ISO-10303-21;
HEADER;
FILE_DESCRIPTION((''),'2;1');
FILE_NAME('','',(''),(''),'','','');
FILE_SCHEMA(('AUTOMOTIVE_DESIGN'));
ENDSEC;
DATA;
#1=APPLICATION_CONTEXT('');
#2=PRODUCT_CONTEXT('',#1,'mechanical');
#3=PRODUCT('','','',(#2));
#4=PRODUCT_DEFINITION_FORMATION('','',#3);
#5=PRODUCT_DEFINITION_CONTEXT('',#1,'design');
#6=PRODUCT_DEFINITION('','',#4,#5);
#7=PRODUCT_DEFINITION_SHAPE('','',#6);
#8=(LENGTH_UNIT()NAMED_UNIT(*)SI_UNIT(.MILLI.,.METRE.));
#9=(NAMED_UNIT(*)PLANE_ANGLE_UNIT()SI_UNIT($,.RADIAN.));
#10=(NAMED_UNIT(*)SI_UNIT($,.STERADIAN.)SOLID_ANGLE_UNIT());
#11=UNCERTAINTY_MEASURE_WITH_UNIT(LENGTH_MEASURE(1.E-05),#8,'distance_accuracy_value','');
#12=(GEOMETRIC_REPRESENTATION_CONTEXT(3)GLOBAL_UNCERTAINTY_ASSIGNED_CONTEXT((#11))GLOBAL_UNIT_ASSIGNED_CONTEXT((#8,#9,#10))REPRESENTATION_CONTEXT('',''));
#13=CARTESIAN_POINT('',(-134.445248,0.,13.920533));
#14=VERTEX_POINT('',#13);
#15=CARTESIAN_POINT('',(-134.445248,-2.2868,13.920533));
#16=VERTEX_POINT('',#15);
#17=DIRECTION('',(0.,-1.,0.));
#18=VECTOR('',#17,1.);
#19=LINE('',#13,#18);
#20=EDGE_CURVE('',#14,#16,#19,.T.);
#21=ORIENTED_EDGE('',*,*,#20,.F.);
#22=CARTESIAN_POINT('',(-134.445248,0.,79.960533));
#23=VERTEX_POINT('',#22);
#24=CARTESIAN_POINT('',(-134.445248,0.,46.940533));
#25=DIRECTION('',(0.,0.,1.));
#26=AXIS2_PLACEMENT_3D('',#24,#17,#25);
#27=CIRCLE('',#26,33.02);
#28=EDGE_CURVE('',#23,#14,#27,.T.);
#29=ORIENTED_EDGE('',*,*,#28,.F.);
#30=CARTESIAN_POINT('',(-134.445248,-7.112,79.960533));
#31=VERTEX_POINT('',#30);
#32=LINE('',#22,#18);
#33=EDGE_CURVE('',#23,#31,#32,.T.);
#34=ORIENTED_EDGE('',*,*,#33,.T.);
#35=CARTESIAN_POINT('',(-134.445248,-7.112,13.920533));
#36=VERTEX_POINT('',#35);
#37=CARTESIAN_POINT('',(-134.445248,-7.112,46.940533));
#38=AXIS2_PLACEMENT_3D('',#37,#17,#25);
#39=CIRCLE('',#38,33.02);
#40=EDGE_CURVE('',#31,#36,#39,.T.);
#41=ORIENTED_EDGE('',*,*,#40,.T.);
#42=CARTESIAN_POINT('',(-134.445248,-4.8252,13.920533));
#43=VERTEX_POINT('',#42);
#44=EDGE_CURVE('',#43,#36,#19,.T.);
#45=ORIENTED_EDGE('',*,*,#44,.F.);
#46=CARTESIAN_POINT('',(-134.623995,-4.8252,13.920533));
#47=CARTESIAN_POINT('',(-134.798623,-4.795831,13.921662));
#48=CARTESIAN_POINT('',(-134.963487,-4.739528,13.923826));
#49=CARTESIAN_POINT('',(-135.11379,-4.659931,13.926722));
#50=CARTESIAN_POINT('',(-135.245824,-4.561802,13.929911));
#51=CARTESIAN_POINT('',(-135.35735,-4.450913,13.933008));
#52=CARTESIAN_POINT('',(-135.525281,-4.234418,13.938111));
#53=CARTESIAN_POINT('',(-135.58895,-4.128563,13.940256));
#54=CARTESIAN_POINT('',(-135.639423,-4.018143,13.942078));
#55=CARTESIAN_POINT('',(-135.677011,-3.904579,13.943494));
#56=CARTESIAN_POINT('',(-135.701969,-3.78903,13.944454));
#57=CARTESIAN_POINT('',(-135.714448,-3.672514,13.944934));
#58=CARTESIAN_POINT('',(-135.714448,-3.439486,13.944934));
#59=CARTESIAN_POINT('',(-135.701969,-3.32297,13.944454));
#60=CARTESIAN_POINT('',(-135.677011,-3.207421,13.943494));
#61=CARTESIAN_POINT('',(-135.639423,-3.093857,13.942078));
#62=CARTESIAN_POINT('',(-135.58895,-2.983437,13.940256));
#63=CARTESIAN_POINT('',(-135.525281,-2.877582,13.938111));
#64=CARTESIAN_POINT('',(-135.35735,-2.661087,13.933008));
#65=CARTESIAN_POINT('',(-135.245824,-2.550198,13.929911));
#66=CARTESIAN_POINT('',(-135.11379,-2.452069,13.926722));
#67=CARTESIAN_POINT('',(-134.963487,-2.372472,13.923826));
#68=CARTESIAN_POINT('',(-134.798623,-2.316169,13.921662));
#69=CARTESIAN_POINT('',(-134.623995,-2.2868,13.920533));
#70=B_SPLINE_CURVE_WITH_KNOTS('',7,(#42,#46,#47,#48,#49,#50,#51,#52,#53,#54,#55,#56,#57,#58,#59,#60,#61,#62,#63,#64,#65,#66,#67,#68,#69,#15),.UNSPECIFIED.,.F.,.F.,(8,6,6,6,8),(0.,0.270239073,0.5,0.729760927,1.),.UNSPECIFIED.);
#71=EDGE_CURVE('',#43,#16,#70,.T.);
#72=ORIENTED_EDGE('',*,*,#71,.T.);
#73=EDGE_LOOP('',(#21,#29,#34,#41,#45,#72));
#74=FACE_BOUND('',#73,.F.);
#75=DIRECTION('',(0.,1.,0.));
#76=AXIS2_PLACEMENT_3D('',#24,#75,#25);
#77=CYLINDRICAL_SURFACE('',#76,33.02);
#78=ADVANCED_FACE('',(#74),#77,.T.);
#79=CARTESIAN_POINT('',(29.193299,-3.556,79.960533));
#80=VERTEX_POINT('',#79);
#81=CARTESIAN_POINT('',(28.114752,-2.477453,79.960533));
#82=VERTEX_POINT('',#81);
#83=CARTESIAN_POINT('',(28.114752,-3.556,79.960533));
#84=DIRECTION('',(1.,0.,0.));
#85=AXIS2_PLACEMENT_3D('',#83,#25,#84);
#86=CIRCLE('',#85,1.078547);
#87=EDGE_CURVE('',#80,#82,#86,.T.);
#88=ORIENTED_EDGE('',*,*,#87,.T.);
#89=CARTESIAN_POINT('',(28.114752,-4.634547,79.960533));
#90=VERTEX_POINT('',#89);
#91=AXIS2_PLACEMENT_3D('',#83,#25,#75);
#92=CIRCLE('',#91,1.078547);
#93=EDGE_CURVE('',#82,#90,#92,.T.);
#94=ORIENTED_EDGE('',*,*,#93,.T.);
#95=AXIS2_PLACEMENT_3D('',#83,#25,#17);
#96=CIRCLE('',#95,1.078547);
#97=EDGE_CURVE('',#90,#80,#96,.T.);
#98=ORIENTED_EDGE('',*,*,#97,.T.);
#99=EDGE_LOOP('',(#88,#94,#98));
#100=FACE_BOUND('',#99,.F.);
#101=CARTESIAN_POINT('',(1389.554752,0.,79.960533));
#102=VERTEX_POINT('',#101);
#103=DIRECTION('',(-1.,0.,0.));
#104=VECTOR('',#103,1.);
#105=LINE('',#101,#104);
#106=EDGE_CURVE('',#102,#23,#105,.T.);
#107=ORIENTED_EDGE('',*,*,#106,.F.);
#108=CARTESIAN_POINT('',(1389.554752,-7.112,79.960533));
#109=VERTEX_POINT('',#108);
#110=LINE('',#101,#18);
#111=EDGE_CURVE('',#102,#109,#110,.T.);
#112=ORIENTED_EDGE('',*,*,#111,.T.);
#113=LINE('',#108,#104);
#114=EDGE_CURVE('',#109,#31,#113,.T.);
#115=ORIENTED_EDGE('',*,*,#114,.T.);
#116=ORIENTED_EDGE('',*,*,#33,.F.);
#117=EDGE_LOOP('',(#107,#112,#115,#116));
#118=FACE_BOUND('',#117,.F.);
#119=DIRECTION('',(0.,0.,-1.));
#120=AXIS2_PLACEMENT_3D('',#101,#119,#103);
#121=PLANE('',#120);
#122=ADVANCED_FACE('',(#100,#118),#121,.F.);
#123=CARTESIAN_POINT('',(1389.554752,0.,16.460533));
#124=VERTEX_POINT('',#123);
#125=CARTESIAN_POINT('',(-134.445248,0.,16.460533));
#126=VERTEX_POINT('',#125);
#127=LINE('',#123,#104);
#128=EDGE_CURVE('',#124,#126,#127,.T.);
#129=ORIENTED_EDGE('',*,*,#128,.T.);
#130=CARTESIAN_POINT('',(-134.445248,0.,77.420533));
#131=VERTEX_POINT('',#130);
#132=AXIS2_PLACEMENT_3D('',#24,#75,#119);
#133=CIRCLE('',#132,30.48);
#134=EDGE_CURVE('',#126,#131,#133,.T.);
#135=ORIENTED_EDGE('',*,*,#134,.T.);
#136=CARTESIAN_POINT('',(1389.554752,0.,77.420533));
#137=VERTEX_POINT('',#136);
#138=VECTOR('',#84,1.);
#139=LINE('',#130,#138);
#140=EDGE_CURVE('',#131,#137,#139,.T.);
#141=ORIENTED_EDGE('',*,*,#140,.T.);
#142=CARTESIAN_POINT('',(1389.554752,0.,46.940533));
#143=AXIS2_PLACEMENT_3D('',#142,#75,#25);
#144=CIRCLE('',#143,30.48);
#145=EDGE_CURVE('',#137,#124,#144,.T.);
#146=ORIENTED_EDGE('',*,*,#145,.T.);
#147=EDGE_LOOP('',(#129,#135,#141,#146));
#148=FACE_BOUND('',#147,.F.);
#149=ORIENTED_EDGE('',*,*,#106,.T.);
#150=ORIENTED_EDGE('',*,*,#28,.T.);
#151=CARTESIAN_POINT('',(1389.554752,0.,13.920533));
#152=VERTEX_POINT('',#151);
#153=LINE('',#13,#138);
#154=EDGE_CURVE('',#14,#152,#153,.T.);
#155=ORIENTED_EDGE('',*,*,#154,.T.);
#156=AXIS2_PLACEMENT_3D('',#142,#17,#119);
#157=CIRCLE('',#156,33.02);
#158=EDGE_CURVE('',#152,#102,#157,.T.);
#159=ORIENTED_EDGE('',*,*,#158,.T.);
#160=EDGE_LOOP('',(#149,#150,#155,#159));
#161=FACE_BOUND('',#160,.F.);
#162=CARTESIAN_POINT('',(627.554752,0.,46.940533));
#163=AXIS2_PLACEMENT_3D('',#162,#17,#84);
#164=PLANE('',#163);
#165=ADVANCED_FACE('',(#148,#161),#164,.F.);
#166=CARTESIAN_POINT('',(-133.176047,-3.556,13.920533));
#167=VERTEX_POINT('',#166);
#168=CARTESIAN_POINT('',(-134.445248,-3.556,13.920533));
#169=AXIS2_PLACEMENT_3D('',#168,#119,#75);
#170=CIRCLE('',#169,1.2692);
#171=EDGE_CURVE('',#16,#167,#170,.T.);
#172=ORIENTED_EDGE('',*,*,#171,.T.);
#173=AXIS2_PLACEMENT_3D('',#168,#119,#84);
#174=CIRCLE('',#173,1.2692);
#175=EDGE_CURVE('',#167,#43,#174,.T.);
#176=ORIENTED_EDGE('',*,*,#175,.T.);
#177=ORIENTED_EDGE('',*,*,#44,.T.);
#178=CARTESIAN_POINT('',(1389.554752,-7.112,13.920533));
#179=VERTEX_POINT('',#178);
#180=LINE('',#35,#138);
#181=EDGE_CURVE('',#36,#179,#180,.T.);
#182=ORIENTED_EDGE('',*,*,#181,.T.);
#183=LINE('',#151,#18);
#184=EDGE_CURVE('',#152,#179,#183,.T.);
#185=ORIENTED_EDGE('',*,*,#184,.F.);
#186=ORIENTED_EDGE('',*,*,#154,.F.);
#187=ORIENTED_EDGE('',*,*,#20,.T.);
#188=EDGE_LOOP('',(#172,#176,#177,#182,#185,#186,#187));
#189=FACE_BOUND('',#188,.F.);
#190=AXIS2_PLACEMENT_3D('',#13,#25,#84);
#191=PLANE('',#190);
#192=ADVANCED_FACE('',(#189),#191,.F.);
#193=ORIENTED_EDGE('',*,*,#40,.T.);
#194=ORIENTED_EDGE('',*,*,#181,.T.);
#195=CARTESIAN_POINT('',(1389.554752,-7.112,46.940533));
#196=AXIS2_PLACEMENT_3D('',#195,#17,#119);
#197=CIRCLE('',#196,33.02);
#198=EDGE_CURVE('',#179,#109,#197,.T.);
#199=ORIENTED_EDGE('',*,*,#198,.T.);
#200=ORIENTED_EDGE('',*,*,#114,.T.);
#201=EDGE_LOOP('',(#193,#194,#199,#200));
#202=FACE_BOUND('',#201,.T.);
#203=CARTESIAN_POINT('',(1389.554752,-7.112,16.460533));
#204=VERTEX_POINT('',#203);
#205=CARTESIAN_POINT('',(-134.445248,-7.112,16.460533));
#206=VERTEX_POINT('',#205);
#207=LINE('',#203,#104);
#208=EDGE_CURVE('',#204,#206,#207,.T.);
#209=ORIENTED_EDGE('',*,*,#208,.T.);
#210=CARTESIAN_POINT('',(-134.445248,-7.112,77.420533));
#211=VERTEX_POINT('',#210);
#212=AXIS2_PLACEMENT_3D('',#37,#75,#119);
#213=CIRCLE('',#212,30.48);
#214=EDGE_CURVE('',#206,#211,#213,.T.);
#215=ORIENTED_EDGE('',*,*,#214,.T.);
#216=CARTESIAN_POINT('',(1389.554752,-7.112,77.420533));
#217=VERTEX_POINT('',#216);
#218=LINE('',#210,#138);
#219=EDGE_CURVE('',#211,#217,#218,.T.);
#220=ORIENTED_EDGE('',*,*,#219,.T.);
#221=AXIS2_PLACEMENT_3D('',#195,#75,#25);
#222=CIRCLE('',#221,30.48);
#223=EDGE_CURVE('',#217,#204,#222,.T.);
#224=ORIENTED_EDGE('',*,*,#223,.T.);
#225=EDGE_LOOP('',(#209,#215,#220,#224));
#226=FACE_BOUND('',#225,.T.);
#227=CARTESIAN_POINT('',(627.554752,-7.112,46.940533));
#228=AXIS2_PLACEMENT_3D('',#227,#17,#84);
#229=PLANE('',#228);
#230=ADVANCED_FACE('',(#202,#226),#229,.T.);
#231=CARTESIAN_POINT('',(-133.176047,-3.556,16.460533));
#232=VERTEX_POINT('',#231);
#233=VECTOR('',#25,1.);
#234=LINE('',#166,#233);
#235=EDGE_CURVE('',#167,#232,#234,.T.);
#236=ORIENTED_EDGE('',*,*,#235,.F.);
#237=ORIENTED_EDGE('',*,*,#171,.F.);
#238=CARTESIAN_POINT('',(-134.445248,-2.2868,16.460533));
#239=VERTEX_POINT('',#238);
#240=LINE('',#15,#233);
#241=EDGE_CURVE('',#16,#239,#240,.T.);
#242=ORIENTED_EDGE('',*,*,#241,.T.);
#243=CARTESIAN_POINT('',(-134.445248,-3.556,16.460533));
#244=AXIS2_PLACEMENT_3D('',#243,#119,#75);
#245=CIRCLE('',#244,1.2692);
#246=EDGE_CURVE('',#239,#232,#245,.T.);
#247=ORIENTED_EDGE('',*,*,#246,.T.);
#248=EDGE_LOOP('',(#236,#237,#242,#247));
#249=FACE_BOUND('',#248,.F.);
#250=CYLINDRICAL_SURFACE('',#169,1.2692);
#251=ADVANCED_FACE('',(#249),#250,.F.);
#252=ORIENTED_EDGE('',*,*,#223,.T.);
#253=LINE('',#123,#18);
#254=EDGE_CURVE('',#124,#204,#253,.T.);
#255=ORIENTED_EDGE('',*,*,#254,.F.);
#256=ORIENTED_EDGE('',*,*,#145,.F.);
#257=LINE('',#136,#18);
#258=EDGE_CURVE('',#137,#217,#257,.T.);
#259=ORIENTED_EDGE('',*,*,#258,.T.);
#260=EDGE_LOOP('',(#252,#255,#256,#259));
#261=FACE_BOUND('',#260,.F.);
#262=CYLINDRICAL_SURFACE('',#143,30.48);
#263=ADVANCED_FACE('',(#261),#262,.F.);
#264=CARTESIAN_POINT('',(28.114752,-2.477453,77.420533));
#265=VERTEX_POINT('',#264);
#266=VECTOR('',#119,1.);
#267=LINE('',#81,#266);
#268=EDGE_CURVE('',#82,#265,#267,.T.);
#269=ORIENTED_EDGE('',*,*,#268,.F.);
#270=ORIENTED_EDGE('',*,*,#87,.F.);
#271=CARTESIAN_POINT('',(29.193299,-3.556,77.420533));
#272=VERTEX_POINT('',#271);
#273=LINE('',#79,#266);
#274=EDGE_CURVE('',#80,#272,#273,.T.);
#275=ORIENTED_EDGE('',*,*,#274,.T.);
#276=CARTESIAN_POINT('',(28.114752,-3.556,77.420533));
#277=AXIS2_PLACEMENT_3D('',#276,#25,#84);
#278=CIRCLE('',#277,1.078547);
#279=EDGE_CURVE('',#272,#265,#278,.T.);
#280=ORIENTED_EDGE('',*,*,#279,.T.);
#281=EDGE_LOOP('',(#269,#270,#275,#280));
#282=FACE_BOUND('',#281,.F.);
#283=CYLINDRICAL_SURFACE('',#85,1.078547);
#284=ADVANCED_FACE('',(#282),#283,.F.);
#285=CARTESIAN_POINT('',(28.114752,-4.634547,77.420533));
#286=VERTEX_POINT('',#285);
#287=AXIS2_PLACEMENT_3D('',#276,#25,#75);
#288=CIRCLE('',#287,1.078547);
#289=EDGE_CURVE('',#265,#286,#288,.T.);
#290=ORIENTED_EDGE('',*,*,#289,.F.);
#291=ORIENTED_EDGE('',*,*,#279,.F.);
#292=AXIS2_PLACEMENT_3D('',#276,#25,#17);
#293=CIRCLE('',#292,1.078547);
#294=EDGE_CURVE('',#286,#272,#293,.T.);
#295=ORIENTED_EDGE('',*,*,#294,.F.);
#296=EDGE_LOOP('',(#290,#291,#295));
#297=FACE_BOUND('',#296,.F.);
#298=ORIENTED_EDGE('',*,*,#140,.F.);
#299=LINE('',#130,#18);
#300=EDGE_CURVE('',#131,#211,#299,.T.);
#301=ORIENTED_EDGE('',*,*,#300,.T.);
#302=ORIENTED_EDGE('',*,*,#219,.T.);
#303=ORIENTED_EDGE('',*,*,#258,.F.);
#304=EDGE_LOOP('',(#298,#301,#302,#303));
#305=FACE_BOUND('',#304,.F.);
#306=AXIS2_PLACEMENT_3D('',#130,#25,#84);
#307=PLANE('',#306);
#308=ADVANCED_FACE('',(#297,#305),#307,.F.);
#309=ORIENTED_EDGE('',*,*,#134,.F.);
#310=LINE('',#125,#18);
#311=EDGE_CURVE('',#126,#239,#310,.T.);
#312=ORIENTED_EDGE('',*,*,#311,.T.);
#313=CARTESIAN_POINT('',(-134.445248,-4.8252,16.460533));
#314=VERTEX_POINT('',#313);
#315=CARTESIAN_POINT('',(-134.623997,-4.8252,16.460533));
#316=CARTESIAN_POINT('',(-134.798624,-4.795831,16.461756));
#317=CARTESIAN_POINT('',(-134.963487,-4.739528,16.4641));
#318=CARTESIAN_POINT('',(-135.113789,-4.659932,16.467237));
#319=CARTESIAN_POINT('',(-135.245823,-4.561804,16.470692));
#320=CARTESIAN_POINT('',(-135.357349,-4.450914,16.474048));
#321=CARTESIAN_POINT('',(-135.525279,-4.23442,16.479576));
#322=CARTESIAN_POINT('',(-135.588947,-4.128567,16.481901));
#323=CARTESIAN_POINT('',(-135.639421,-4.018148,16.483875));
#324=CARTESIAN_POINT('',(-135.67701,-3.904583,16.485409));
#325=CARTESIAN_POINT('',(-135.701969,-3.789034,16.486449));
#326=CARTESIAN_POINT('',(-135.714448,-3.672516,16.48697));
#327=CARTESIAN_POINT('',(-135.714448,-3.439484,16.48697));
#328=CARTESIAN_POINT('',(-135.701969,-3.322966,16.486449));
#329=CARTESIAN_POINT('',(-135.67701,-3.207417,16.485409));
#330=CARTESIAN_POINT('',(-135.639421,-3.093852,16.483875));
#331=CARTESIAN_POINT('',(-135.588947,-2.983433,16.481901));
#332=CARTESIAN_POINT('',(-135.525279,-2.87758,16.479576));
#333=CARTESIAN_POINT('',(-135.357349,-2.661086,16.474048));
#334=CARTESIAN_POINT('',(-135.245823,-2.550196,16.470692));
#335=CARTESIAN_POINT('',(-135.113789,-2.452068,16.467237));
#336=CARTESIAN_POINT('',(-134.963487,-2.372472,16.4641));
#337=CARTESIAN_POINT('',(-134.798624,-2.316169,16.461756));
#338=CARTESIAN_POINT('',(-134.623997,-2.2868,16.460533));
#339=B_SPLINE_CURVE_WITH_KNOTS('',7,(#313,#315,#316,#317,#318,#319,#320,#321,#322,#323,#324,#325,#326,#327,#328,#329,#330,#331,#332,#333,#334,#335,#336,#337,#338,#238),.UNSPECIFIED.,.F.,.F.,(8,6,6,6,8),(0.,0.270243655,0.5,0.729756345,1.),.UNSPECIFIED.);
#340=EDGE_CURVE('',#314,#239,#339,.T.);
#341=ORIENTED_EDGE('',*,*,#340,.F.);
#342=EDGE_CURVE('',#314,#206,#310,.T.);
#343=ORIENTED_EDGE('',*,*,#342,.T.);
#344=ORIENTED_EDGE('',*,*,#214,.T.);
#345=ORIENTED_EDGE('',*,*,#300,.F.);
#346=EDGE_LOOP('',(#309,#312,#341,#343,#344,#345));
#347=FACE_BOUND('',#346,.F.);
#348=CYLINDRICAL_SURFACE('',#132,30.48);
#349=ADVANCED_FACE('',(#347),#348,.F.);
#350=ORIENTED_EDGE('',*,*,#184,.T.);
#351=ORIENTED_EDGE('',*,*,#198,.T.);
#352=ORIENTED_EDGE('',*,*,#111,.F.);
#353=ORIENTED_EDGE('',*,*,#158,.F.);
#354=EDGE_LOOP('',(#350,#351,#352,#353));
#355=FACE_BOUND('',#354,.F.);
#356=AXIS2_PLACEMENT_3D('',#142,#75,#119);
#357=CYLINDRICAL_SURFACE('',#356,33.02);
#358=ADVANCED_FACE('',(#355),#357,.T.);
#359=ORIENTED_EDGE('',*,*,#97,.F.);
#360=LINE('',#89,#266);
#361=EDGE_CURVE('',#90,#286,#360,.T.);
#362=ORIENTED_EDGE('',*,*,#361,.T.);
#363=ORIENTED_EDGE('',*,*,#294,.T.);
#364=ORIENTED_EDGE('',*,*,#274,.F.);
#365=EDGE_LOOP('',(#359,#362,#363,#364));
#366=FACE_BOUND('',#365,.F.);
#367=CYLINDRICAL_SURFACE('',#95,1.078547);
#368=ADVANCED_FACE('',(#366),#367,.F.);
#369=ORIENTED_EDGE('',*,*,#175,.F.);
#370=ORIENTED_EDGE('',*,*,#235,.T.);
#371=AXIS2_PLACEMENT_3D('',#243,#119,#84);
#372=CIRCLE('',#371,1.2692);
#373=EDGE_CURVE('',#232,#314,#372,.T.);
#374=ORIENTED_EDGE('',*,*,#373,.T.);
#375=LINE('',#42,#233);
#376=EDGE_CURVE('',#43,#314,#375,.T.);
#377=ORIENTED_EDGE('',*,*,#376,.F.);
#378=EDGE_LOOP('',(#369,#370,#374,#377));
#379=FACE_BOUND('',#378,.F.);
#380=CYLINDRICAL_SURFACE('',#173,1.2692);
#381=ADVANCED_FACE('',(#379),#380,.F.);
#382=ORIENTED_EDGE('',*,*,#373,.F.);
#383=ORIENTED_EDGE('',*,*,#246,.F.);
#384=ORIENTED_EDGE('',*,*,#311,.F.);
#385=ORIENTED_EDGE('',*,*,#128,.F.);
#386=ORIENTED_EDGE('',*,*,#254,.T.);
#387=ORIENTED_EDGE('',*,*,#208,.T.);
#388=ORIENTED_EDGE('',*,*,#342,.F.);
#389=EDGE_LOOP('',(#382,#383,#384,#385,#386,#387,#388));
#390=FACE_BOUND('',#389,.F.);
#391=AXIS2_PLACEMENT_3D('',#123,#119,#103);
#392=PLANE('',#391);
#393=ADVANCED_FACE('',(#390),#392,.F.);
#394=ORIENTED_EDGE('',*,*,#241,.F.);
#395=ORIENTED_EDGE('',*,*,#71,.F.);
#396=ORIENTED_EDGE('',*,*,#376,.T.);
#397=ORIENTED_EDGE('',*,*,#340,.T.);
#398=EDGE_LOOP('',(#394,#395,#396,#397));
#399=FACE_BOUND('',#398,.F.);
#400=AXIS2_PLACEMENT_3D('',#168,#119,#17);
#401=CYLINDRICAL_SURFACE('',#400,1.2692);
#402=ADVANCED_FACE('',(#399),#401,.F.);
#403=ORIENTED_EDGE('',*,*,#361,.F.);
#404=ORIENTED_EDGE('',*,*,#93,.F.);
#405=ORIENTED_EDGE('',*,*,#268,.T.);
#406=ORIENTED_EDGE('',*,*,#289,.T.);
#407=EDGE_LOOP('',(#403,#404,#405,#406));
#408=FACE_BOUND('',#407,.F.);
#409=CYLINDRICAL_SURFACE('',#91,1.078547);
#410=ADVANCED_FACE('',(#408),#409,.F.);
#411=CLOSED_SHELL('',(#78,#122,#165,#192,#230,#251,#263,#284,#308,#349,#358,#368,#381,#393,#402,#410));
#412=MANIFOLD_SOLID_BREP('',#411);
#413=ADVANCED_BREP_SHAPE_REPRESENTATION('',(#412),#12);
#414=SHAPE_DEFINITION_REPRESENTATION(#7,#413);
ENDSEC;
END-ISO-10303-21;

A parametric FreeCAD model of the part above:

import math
import FreeCAD as App
import Part
import Sketcher
Q = App.Units.Quantity

doc = App.newDocument("Part")
params = doc.addObject("Spreadsheet::Sheet", "Params")
for row, (alias, value) in enumerate([
    ("sketch1_radius", "1.3 in"),
    ("sketch1_radius2", "1.2 in"),
    ("sketch1_width", "60 in"),
    ("pad1_length", "0.28 in"),
    ("pocket1_length", "1 in"),
    ("pocket2_length", "1 in"),
], start=1):
    params.set(f"A{row}", alias)
    params.set(f"B{row}", "=" + value)
    params.setAlias(f"B{row}", alias)

body = doc.addObject("PartDesign::Body", "Body")

sketch1 = body.newObject("Sketcher::SketchObject", "Sketch")
sketch1.AttachmentSupport = (doc.getObject("XZ_Plane"), [""])
sketch1.MapMode = "FlatFace"
sketch1.addGeometry([
    Part.LineSegment(App.Vector(-134, 14, 0), App.Vector(1390, 14, 0)),
    Part.ArcOfCircle(Part.Circle(App.Vector(1390, 47, 0), App.Vector(0, 0, 1), 33), math.radians(-90), math.radians(90)),
    Part.LineSegment(App.Vector(1390, 80, 0), App.Vector(-134, 80, 0)),
    Part.ArcOfCircle(Part.Circle(App.Vector(-134, 47, 0), App.Vector(0, 0, 1), 33), math.radians(90), math.radians(270)),
    Part.LineSegment(App.Vector(1390, 16, 0), App.Vector(-134, 16, 0)),
    Part.ArcOfCircle(Part.Circle(App.Vector(-134, 47, 0), App.Vector(0, 0, 1), 30), math.radians(90), math.radians(270)),
    Part.LineSegment(App.Vector(-134, 77, 0), App.Vector(1390, 77, 0)),
    Part.ArcOfCircle(Part.Circle(App.Vector(1390, 47, 0), App.Vector(0, 0, 1), 30), math.radians(-90), math.radians(90)),
], False)
sketch1.addConstraint([
    Sketcher.Constraint("Tangent", 0, 2, 1, 1),
    Sketcher.Constraint("Tangent", 1, 2, 2, 1),
    Sketcher.Constraint("Tangent", 2, 2, 3, 1),
    Sketcher.Constraint("Tangent", 3, 2, 0, 1),
    Sketcher.Constraint("Tangent", 4, 2, 5, 2),
    Sketcher.Constraint("Tangent", 5, 1, 6, 1),
    Sketcher.Constraint("Tangent", 6, 2, 7, 2),
    Sketcher.Constraint("Tangent", 7, 1, 4, 1),
    Sketcher.Constraint("Horizontal", 0),
    Sketcher.Constraint("Horizontal", 2),
    Sketcher.Constraint("Horizontal", 4),
    Sketcher.Constraint("Horizontal", 6),
    Sketcher.Constraint("Coincident", 5, 3, 3, 3),
    Sketcher.Constraint("Vertical", 7, 3, 0, 2),
    Sketcher.Constraint("Radius", 1, Q("1.3 in")),
    Sketcher.Constraint("Radius", 5, Q("1.2 in")),
    Sketcher.Constraint("DistanceX", 0, 1, 0, 2, Q("60 in")),
    Sketcher.Constraint("DistanceX", -1, 1, 1, 3, Q("1389.554752 mm")),
    Sketcher.Constraint("DistanceY", -1, 1, 1, 3, Q("46.940533 mm")),
])
sketch1.setExpression("Constraints[14]", "Params.sketch1_radius")
sketch1.setExpression("Constraints[15]", "Params.sketch1_radius2")
sketch1.setExpression("Constraints[16]", "Params.sketch1_width")
pad1 = body.newObject("PartDesign::Pad", "Pad")
pad1.Profile = sketch1
pad1.setExpression("Length", "Params.pad1_length")

sketch2 = body.newObject("Sketcher::SketchObject", "Sketch001")
sketch2.AttachmentSupport = (doc.getObject("XY_Plane"), [""])
sketch2.MapMode = "FlatFace"
sketch2.AttachmentOffset = App.Placement(App.Vector(0, 0, 79.960533), App.Rotation())
sketch2.addGeometry([
    Part.ArcOfCircle(Part.Circle(App.Vector(28.1, -3.6, 0), App.Vector(0, 0, 1), 1.1), math.radians(90), math.radians(270)),
    Part.ArcOfCircle(Part.Circle(App.Vector(28.1, -3.6, 0), App.Vector(0, 0, 1), 1.1), math.radians(-90), math.radians(0)),
    Part.ArcOfCircle(Part.Circle(App.Vector(28.1, -3.6, 0), App.Vector(0, 0, 1), 1.1), math.radians(0), math.radians(90)),
], False)
sketch2.addConstraint([
    Sketcher.Constraint("Tangent", 0, 2, 1, 1),
    Sketcher.Constraint("Tangent", 1, 2, 2, 1),
    Sketcher.Constraint("Tangent", 2, 2, 0, 1),
    Sketcher.Constraint("Horizontal", 2, 3, 1, 2),
    Sketcher.Constraint("Vertical", 2, 3, 0, 2),
    Sketcher.Constraint("Vertical", 0, 2, 2, 2),
    Sketcher.Constraint("DistanceY", 0, 3, -1, 1, Q("0.14 in")),
    Sketcher.Constraint("Radius", 0, Q("1.078547 mm")),
    Sketcher.Constraint("DistanceX", -1, 1, 1, 2, Q("29.193299 mm")),
])
pocket1 = body.newObject("PartDesign::Pocket", "Pocket")
pocket1.Profile = sketch2
pocket1.setExpression("Length", "Params.pocket1_length")

sketch3 = body.newObject("Sketcher::SketchObject", "Sketch002")
sketch3.AttachmentSupport = (doc.getObject("XY_Plane"), [""])
sketch3.MapMode = "FlatFace"
sketch3.AttachmentOffset = App.Placement(App.Vector(0, 0, 13.920533), App.Rotation())
sketch3.addGeometry([
    Part.ArcOfCircle(Part.Circle(App.Vector(-134.4, -3.6, 0), App.Vector(0, 0, 1), 1.3), math.radians(0), math.radians(90)),
    Part.ArcOfCircle(Part.Circle(App.Vector(-134.4, -3.6, 0), App.Vector(0, 0, 1), 1.3), math.radians(-90), math.radians(0)),
    Part.ArcOfCircle(Part.Circle(App.Vector(-134.4, -3.6, 0), App.Vector(0, 0, 1), 1.3), math.radians(90), math.radians(270)),
], False)
sketch3.addConstraint([
    Sketcher.Constraint("Tangent", 0, 1, 1, 2),
    Sketcher.Constraint("Tangent", 1, 1, 2, 2),
    Sketcher.Constraint("Tangent", 2, 1, 0, 2),
    Sketcher.Constraint("Horizontal", 2, 3, 0, 1),
    Sketcher.Constraint("Vertical", 2, 3, 1, 1),
    Sketcher.Constraint("Vertical", 1, 1, 2, 1),
    Sketcher.Constraint("DistanceY", 0, 3, -1, 1, Q("0.14 in")),
    Sketcher.Constraint("Radius", 0, Q("1.2692 mm")),
    Sketcher.Constraint("DistanceX", 0, 3, -1, 1, Q("134.445248 mm")),
])
pocket2 = body.newObject("PartDesign::Pocket", "Pocket001")
pocket2.Profile = sketch3
pocket2.setExpression("Length", "Params.pocket2_length")
pocket2.Reversed = True

doc.recompute()
